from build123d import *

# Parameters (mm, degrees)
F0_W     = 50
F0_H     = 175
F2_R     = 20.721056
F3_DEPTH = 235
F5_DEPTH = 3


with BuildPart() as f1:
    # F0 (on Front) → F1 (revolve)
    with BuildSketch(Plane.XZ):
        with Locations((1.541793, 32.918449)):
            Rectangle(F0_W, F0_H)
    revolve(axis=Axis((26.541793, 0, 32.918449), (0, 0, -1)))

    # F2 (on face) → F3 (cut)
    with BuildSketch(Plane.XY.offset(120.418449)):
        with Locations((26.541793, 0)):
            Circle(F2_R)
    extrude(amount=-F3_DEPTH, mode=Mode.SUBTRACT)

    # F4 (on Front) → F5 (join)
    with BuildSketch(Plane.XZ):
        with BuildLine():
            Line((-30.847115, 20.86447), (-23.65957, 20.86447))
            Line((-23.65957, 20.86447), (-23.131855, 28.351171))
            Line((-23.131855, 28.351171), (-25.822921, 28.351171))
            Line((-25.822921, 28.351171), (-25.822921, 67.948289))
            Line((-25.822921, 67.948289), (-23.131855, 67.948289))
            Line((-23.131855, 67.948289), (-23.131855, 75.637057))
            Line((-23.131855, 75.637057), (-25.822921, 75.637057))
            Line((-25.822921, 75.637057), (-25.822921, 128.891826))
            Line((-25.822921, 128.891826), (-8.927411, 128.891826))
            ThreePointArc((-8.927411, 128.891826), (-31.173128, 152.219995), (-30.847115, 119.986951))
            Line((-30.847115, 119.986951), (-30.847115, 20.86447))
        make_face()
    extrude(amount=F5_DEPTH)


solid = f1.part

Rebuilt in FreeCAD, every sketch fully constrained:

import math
import FreeCAD as App
import Part
import Sketcher
from FreeCAD import Vector
Q = App.Units.Quantity


def add_polygon(sketch, points):
    """Adds a closed chain of lines whose ends are joined by coincident constraints."""
    first, n = sketch.GeometryCount, len(points)
    for a, b in zip(points, points[1:] + points[:1]):
        sketch.addGeometry(Part.LineSegment(App.Vector(*a, 0), App.Vector(*b, 0)), False)
    for i in range(n):
        sketch.addConstraint(Sketcher.Constraint("Coincident", first + i, 2, first + (i + 1) % n, 1))

doc = App.newDocument("Part")
body = doc.addObject("PartDesign::Body", "Body")

sketch1 = doc.addObject("Sketcher::SketchObject", "Sketch")
body.addObject(sketch1)
sketch1.AttachmentSupport = (doc.XZ_Plane, [""])
sketch1.MapMode = "FlatFace"
add_polygon(sketch1, [(-23, 120), (-23, -55), (27, -55), (27, 120)])
sketch1.addGeometry(Part.LineSegment(Vector(27, 120, 0), Vector(27, -55, 0)), True)
sketch1.addConstraint(Sketcher.Constraint("Vertical", 0))
sketch1.addConstraint(Sketcher.Constraint("Horizontal", 1))
sketch1.addConstraint(Sketcher.Constraint("Vertical", 2))
sketch1.addConstraint(Sketcher.Constraint("Horizontal", 3))
sketch1.addConstraint(Sketcher.Constraint("Vertical", 4))
sketch1.addConstraint(Sketcher.Constraint("Coincident", 4, 1, 2, 2))
sketch1.addConstraint(Sketcher.Constraint("Horizontal", 0, 2, 4, 2))
sketch1.addConstraint(Sketcher.Constraint("DistanceX", 1, 1, 1, 2, Q("50 mm")))
sketch1.addConstraint(Sketcher.Constraint("DistanceY", 0, 2, 0, 1, Q("175 mm")))
sketch1.addConstraint(Sketcher.Constraint("DistanceY", 0, 2, -1, 1, Q("54.581551 mm")))
sketch1.addConstraint(Sketcher.Constraint("DistanceX", 0, 2, -1, 1, Q("23.458207 mm")))
revolution = doc.addObject("PartDesign::Revolution", "Revolution")
body.addObject(revolution)
revolution.Profile = sketch1
revolution.ReferenceAxis = (sketch1, ["Axis0"])
revolution.Angle = 360

sketch2 = doc.addObject("Sketcher::SketchObject", "Sketch001")
body.addObject(sketch2)
sketch2.AttachmentSupport = (doc.XY_Plane, [""])
sketch2.MapMode = "FlatFace"
sketch2.AttachmentOffset = App.Placement(Vector(0, 0, 120.418449), App.Rotation())
sketch2.addGeometry(Part.Circle(Vector(27, 0, 0), Vector(0, 0, 1), 21), False)
sketch2.addConstraint(Sketcher.Constraint("PointOnObject", 0, 3, -1))
sketch2.addConstraint(Sketcher.Constraint("Diameter", 0, Q("41.442112 mm")))
sketch2.addConstraint(Sketcher.Constraint("DistanceX", -1, 1, 0, 3, Q("26.541793 mm")))
pocket1 = doc.addObject("PartDesign::Pocket", "Pocket")
body.addObject(pocket1)
pocket1.Profile = sketch2
pocket1.Length = 235

sketch3 = doc.addObject("Sketcher::SketchObject", "Sketch002")
body.addObject(sketch3)
sketch3.AttachmentSupport = (doc.XZ_Plane, [""])
sketch3.MapMode = "FlatFace"
sketch3.addGeometry(Part.LineSegment(Vector(-30.8, 20.9, 0), Vector(-23.7, 20.9, 0)), False)
sketch3.addGeometry(Part.LineSegment(Vector(-23.7, 20.9, 0), Vector(-23.1, 28.4, 0)), False)
sketch3.addGeometry(Part.LineSegment(Vector(-23.1, 28.4, 0), Vector(-25.8, 28.4, 0)), False)
sketch3.addGeometry(Part.LineSegment(Vector(-25.8, 28.4, 0), Vector(-25.8, 67.9, 0)), False)
sketch3.addGeometry(Part.LineSegment(Vector(-25.8, 67.9, 0), Vector(-23.1, 67.9, 0)), False)
sketch3.addGeometry(Part.LineSegment(Vector(-23.1, 67.9, 0), Vector(-23.1, 75.6, 0)), False)
sketch3.addGeometry(Part.LineSegment(Vector(-23.1, 75.6, 0), Vector(-25.8, 75.6, 0)), False)
sketch3.addGeometry(Part.LineSegment(Vector(-25.8, 75.6, 0), Vector(-25.8, 128.9, 0)), False)
sketch3.addGeometry(Part.LineSegment(Vector(-25.8, 128.9, 0), Vector(-8.9, 128.9, 0)), False)
sketch3.addGeometry(Part.ArcOfCircle(Part.Circle(Vector(-24.7, 136.2, 0), Vector(0, 0, 1), 17.3), math.radians(-25), math.radians(249)), False)
sketch3.addGeometry(Part.LineSegment(Vector(-30.8, 120, 0), Vector(-30.8, 20.9, 0)), False)
sketch3.addConstraint(Sketcher.Constraint("Coincident", 0, 2, 1, 1))
sketch3.addConstraint(Sketcher.Constraint("Coincident", 1, 2, 2, 1))
sketch3.addConstraint(Sketcher.Constraint("Coincident", 2, 2, 3, 1))
sketch3.addConstraint(Sketcher.Constraint("Coincident", 3, 2, 4, 1))
sketch3.addConstraint(Sketcher.Constraint("Coincident", 4, 2, 5, 1))
sketch3.addConstraint(Sketcher.Constraint("Coincident", 5, 2, 6, 1))
sketch3.addConstraint(Sketcher.Constraint("Coincident", 6, 2, 7, 1))
sketch3.addConstraint(Sketcher.Constraint("Coincident", 7, 2, 8, 1))
sketch3.addConstraint(Sketcher.Constraint("Coincident", 8, 2, 9, 1))
sketch3.addConstraint(Sketcher.Constraint("Coincident", 9, 2, 10, 1))
sketch3.addConstraint(Sketcher.Constraint("Coincident", 10, 2, 0, 1))
sketch3.addConstraint(Sketcher.Constraint("Horizontal", 0))
sketch3.addConstraint(Sketcher.Constraint("Horizontal", 2))
sketch3.addConstraint(Sketcher.Constraint("Vertical", 3))
sketch3.addConstraint(Sketcher.Constraint("Horizontal", 4))
sketch3.addConstraint(Sketcher.Constraint("Vertical", 5))
sketch3.addConstraint(Sketcher.Constraint("Horizontal", 6))
sketch3.addConstraint(Sketcher.Constraint("Vertical", 7))
sketch3.addConstraint(Sketcher.Constraint("Horizontal", 8))
sketch3.addConstraint(Sketcher.Constraint("Vertical", 10))
sketch3.addConstraint(Sketcher.Constraint("Vertical", 1, 2, 4, 2))
sketch3.addConstraint(Sketcher.Constraint("Vertical", 3, 2, 6, 2))
sketch3.addConstraint(Sketcher.Constraint("Radius", 9, Q("17.326272 mm")))
sketch3.addConstraint(Sketcher.Constraint("DistanceX", 2, 2, 9, 3, Q("1.171001 mm")))
sketch3.addConstraint(Sketcher.Constraint("DistanceX", 8, 1, 8, 2, Q("16.89551 mm")))
sketch3.addConstraint(Sketcher.Constraint("DistanceY", 3, 1, 3, 2, Q("39.597118 mm")))
sketch3.addConstraint(Sketcher.Constraint("DistanceY", 7, 1, 7, 2, Q("53.254769 mm")))
sketch3.addConstraint(Sketcher.Constraint("DistanceY", 10, 2, 10, 1, Q("99.122481 mm")))
sketch3.addConstraint(Sketcher.Constraint("DistanceY", 0, 2, 1, 2, Q("7.486701 mm")))
sketch3.addConstraint(Sketcher.Constraint("DistanceX", 0, 1, 0, 2, Q("7.187545 mm")))
sketch3.addConstraint(Sketcher.Constraint("DistanceX", 2, 2, 2, 1, Q("2.691066 mm")))
sketch3.addConstraint(Sketcher.Constraint("DistanceY", 5, 1, 5, 2, Q("7.688768 mm")))
sketch3.addConstraint(Sketcher.Constraint("DistanceX", 9, 3, -1, 1, Q("24.65192 mm")))
sketch3.addConstraint(Sketcher.Constraint("DistanceY", -1, 1, 9, 3, Q("136.167781 mm")))
pad1 = doc.addObject("PartDesign::Pad", "Pad")
body.addObject(pad1)
pad1.Profile = sketch3
pad1.Length = 3

doc.recompute()
